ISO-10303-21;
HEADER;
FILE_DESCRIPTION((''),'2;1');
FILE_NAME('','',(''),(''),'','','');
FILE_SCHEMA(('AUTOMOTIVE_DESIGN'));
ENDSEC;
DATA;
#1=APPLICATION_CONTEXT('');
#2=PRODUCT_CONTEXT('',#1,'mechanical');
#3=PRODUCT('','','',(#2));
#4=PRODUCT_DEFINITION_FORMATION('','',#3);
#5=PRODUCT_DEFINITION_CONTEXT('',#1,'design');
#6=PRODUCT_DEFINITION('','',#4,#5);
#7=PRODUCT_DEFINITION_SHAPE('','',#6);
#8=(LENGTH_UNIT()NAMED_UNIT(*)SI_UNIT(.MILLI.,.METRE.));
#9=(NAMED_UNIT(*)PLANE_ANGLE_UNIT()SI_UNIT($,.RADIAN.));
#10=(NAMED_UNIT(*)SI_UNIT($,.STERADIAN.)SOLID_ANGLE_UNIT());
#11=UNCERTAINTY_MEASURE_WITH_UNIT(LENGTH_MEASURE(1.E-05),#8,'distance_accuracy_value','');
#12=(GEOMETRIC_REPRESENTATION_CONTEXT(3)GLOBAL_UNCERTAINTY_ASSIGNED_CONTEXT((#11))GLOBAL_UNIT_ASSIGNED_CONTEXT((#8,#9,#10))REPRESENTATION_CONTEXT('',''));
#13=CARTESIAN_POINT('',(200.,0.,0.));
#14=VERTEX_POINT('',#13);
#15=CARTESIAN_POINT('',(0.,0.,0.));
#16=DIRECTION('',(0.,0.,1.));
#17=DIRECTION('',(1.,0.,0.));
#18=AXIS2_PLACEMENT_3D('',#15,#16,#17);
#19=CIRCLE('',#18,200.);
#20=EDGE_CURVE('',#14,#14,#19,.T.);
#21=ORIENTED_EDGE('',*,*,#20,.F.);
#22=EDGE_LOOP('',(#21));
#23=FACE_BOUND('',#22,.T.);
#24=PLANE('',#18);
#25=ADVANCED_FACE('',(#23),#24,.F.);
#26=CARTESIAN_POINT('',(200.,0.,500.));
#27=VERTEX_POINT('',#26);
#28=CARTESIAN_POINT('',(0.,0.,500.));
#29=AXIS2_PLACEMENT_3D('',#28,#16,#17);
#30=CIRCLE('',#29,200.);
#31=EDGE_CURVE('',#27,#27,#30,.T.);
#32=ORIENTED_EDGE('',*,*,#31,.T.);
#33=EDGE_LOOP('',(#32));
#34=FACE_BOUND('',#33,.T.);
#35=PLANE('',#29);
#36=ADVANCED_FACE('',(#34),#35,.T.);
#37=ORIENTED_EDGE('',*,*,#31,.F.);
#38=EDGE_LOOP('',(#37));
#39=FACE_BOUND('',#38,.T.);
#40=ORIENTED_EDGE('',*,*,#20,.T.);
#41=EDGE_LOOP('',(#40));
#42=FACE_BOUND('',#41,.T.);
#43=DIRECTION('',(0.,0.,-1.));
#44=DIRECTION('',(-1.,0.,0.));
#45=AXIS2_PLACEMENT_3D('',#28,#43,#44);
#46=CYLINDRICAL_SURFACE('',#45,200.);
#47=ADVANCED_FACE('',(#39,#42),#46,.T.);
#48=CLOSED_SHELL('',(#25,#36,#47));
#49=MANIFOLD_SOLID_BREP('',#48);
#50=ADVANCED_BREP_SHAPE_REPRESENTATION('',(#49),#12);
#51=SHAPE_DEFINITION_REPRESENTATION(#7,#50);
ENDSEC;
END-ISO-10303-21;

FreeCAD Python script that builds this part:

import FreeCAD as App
import Part
import Sketcher

V = App.Vector

doc = App.newDocument("Part")
params = doc.addObject("Spreadsheet::Sheet", "Params")
for row, (alias, value) in enumerate([
    ("sketch1_diameter", "400 mm"),
    ("pad1_length", "500 mm"),
], start=1):
    params.set(f"A{row}", alias)
    params.set(f"B{row}", "=" + value)
    params.setAlias(f"B{row}", alias)

body = doc.addObject("PartDesign::Body", "Body")

sketch1 = doc.addObject("Sketcher::SketchObject", "Sketch")
body.addObject(sketch1)
sketch1.AttachmentSupport = (doc.XY_Plane, [""])
sketch1.MapMode = "FlatFace"
sketch1.addGeometry(Part.Circle(V(0, 0, 0), V(0, 0, 1), 200), False)
sketch1.addConstraint([
    Sketcher.Constraint("Coincident", 0, 3, -1, 1),
    Sketcher.Constraint("Diameter", 0, 400.0),
])
sketch1.setExpression("Constraints[1]", "Params.sketch1_diameter")
pad1 = doc.addObject("PartDesign::Pad", "Pad")
body.addObject(pad1)
pad1.Profile = sketch1
pad1.setExpression("Length", "Params.pad1_length")

doc.recompute()
